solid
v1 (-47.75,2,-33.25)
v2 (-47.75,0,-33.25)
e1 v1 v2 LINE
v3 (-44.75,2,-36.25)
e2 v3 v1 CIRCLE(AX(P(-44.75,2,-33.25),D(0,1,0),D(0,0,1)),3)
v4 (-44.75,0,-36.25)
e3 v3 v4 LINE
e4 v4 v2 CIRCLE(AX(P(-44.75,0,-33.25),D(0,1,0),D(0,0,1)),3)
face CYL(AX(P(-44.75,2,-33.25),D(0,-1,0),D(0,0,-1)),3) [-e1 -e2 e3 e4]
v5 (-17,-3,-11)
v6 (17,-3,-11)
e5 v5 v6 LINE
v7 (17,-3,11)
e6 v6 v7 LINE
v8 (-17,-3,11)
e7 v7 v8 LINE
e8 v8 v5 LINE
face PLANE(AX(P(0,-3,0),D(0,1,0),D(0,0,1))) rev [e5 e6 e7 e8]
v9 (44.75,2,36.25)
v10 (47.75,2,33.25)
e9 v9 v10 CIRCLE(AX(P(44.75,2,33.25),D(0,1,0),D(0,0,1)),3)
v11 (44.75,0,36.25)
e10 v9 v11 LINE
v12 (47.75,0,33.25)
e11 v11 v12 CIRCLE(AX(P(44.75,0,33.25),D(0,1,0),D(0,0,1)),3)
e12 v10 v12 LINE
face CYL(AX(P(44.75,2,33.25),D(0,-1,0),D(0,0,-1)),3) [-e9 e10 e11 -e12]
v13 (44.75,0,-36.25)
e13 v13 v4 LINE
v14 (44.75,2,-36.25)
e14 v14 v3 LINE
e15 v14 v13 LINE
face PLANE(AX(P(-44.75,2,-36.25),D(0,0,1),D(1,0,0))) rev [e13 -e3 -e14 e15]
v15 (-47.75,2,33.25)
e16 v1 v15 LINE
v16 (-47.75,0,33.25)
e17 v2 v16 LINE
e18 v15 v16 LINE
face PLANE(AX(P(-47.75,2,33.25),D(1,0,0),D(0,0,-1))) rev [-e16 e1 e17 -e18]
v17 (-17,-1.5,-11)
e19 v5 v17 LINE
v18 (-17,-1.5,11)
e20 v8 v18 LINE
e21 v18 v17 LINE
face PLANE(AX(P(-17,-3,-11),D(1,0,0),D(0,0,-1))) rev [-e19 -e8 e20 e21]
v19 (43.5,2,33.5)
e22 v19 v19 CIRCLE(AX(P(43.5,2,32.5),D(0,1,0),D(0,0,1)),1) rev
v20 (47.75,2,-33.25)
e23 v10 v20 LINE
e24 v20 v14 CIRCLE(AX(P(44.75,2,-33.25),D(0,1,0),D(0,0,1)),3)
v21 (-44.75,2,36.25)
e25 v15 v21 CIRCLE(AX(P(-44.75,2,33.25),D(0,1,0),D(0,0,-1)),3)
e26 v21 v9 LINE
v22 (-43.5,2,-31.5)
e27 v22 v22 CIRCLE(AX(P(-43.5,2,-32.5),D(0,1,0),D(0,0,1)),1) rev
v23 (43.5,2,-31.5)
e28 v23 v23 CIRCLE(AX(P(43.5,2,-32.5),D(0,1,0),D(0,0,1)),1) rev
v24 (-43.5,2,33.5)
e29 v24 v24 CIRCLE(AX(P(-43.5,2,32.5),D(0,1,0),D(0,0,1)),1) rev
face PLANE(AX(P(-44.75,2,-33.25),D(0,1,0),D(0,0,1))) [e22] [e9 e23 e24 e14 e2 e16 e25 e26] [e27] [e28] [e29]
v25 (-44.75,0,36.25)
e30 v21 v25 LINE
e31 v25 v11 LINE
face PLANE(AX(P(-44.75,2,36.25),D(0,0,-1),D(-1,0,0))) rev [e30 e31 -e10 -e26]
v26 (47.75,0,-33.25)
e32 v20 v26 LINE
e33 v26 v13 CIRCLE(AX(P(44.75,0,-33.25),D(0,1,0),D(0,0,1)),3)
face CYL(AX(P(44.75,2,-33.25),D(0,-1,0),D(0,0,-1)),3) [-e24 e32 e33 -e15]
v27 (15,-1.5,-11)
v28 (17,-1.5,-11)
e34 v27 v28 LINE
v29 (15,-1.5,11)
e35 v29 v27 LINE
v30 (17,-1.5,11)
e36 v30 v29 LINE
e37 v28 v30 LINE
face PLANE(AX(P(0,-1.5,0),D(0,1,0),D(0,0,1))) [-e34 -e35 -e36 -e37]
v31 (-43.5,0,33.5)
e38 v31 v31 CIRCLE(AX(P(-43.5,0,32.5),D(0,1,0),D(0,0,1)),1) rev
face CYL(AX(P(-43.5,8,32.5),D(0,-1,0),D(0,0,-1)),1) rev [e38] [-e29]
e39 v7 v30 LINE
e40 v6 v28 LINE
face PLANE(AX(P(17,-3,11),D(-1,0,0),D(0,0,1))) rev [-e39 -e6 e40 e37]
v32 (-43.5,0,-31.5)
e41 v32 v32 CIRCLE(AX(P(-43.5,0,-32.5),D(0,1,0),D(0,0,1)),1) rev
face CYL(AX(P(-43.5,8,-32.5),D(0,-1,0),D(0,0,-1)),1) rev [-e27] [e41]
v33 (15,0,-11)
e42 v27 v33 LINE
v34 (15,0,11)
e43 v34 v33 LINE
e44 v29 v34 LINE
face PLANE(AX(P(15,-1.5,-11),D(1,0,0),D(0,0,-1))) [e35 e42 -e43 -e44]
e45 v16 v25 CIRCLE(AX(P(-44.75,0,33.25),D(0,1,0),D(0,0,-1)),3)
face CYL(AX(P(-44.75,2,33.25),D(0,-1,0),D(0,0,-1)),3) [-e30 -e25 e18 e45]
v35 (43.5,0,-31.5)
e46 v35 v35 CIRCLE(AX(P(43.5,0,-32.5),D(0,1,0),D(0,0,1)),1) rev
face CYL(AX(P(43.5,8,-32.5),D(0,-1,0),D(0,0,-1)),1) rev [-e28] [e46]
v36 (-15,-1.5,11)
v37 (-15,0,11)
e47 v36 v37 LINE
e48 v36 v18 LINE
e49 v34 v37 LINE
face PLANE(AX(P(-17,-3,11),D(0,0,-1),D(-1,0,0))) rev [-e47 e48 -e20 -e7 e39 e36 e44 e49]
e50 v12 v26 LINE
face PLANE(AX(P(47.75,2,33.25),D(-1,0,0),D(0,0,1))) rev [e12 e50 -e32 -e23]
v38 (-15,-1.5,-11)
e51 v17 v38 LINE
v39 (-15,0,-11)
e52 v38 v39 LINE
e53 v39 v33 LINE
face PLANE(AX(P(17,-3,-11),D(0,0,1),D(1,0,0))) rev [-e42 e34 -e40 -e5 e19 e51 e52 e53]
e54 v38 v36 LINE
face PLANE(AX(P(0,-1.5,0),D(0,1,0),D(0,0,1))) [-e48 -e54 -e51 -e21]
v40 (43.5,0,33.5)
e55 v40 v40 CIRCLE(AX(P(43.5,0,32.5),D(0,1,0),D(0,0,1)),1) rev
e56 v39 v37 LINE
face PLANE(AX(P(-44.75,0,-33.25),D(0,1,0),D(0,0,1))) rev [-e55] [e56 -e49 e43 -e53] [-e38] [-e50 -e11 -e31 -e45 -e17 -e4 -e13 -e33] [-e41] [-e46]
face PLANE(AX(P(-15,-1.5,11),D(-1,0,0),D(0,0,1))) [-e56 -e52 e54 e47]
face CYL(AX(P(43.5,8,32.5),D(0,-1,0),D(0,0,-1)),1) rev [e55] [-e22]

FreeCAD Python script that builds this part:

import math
import FreeCAD as App
import Part
import Sketcher
from FreeCAD import Vector
Q = App.Units.Quantity

doc = App.newDocument("Part")
params = doc.addObject("Spreadsheet::Sheet", "Params")
for row, (alias, value) in enumerate([
    ("sketch1_radius", "3 mm"),
    ("sketch1_width", "89.5 mm"),
    ("sketch1_height", "66.5 mm"),
    ("pad1_length", "2 mm"),
    ("sketch2_diameter", "2 mm"),
    ("sketch3_width", "34 mm"),
    ("sketch3_height", "22 mm"),
    ("pad2_length", "3 mm"),
    ("sketch4_width", "2 mm"),
    ("sketch4_height", "22 mm"),
    ("pocket2_length", "1.5 mm"),
], start=1):
    params.set(f"A{row}", alias)
    params.set(f"B{row}", "=" + value)
    params.setAlias(f"B{row}", alias)

body = doc.addObject("PartDesign::Body", "Body")

# Sketch on XZ plane
sketch1 = doc.addObject("Sketcher::SketchObject", "Sketch")
body.addObject(sketch1)
sketch1.AttachmentSupport = (doc.XZ_Plane, [""])
sketch1.MapMode = "FlatFace"
sketch1.addGeometry([
    Part.LineSegment(Vector(-47.75, -33.25, 0), Vector(-47.75, 33.25, 0)),  # 0
    Part.ArcOfCircle(Part.Circle(Vector(-44.75, 33.25, 0), Vector(0, 0, 1), 3), math.radians(90), math.radians(180)),  # 1
    Part.LineSegment(Vector(-44.75, 36.25, 0), Vector(44.75, 36.25, 0)),  # 2
    Part.ArcOfCircle(Part.Circle(Vector(44.75, 33.25, 0), Vector(0, 0, 1), 3), math.radians(0), math.radians(90)),  # 3
    Part.LineSegment(Vector(47.75, 33.25, 0), Vector(47.75, -33.25, 0)),  # 4
    Part.ArcOfCircle(Part.Circle(Vector(44.75, -33.25, 0), Vector(0, 0, 1), 3), math.radians(-90), math.radians(0)),  # 5
    Part.LineSegment(Vector(44.75, -36.25, 0), Vector(-44.75, -36.25, 0)),  # 6
    Part.ArcOfCircle(Part.Circle(Vector(-44.75, -33.25, 0), Vector(0, 0, 1), 3), math.radians(180), math.radians(270)),  # 7
], False)
sketch1.addConstraint([
    Sketcher.Constraint("Tangent", 0, 2, 1, 2),
    Sketcher.Constraint("Tangent", 1, 1, 2, 1),
    Sketcher.Constraint("Tangent", 2, 2, 3, 2),
    Sketcher.Constraint("Tangent", 3, 1, 4, 1),
    Sketcher.Constraint("Tangent", 4, 2, 5, 2),
    Sketcher.Constraint("Tangent", 5, 1, 6, 1),
    Sketcher.Constraint("Tangent", 6, 2, 7, 2),
    Sketcher.Constraint("Tangent", 7, 1, 0, 1),
    Sketcher.Constraint("Vertical", 0),
    Sketcher.Constraint("Horizontal", 2),
    Sketcher.Constraint("Vertical", 4),
    Sketcher.Constraint("Horizontal", 6),
    Sketcher.Constraint("Equal", 1, 3),
    Sketcher.Constraint("Equal", 3, 5),
    Sketcher.Constraint("Equal", 5, 7),
    Sketcher.Constraint("Symmetric", 1, 3, 5, 3, -1, 1),
    Sketcher.Constraint("Radius", 1, Q("3 mm")),
    Sketcher.Constraint("DistanceX", 2, 1, 2, 2, Q("89.5 mm")),
    Sketcher.Constraint("DistanceY", 0, 1, 0, 2, Q("66.5 mm")),
])
sketch1.setExpression("Constraints[16]", "Params.sketch1_radius")
sketch1.setExpression("Constraints[17]", "Params.sketch1_width")
sketch1.setExpression("Constraints[18]", "Params.sketch1_height")
pad1 = doc.addObject("PartDesign::Pad", "Pad")
body.addObject(pad1)
pad1.Profile = sketch1
pad1.setExpression("Length", "Params.pad1_length")
pad1.Reversed = True

# Sketch on XZ plane
sketch2 = doc.addObject("Sketcher::SketchObject", "Sketch001")
body.addObject(sketch2)
sketch2.AttachmentSupport = (doc.XZ_Plane, [""])
sketch2.MapMode = "FlatFace"
sketch2.AttachmentOffset = App.Placement(Vector(0, 0, -5), App.Rotation())
sketch2.addGeometry([
    Part.Circle(Vector(-43.5, -32.5, 0), Vector(0, 0, 1), 1),
    Part.Circle(Vector(-43.5, 32.5, 0), Vector(0, 0, 1), 1),
    Part.Circle(Vector(43.5, 32.5, 0), Vector(0, 0, 1), 1),
    Part.Circle(Vector(43.5, -32.5, 0), Vector(0, 0, 1), 1),
], False)
sketch2.addConstraint([
    Sketcher.Constraint("Equal", 0, 1),
    Sketcher.Constraint("Equal", 1, 2),
    Sketcher.Constraint("Equal", 2, 3),
    Sketcher.Constraint("Symmetric", 0, 3, 2, 3, -1, 1),
    Sketcher.Constraint("Symmetric", 1, 3, 3, 3, -1, 1),
    Sketcher.Constraint("Symmetric", 1, 3, 2, 3, -2),
    Sketcher.Constraint("Diameter", 0, Q("2 mm")),
    Sketcher.Constraint("DistanceY", 0, 3, 1, 3, Q("65 mm")),
    Sketcher.Constraint("DistanceX", 1, 3, 2, 3, Q("87 mm")),
])
sketch2.setExpression("Constraints[6]", "Params.sketch2_diameter")
pocket1 = doc.addObject("PartDesign::Pocket", "Pocket")
body.addObject(pocket1)
pocket1.Profile = sketch2
pocket1.Type = "ThroughAll"
pocket1.Midplane = True

# Sketch on XZ plane
sketch3 = doc.addObject("Sketcher::SketchObject", "Sketch002")
body.addObject(sketch3)
sketch3.AttachmentSupport = (doc.XZ_Plane, [""])
sketch3.MapMode = "FlatFace"
sketch3.addGeometry([
    Part.LineSegment(Vector(-17, 11, 0), Vector(-17, -11, 0)),
    Part.LineSegment(Vector(-17, -11, 0), Vector(17, -11, 0)),
    Part.LineSegment(Vector(17, -11, 0), Vector(17, 11, 0)),
    Part.LineSegment(Vector(17, 11, 0), Vector(-17, 11, 0)),
], False)
sketch3.addConstraint([
    Sketcher.Constraint("Coincident", 0, 2, 1, 1),
    Sketcher.Constraint("Coincident", 1, 2, 2, 1),
    Sketcher.Constraint("Coincident", 2, 2, 3, 1),
    Sketcher.Constraint("Coincident", 3, 2, 0, 1),
    Sketcher.Constraint("Vertical", 0),
    Sketcher.Constraint("Horizontal", 1),
    Sketcher.Constraint("Vertical", 2),
    Sketcher.Constraint("Horizontal", 3),
    Sketcher.Constraint("Symmetric", 0, 2, 2, 2, -1, 1),
    Sketcher.Constraint("DistanceX", 1, 1, 1, 2, Q("34 mm")),
    Sketcher.Constraint("DistanceY", 0, 2, 0, 1, Q("22 mm")),
])
sketch3.setExpression("Constraints[9]", "Params.sketch3_width")
sketch3.setExpression("Constraints[10]", "Params.sketch3_height")
pad2 = doc.addObject("PartDesign::Pad", "Pad001")
body.addObject(pad2)
pad2.Profile = sketch3
pad2.setExpression("Length", "Params.pad2_length")

# Sketch on XZ plane
sketch4 = doc.addObject("Sketcher::SketchObject", "Sketch003")
body.addObject(sketch4)
sketch4.AttachmentSupport = (doc.XZ_Plane, [""])
sketch4.MapMode = "FlatFace"
sketch4.addGeometry([
    Part.LineSegment(Vector(-17, 11, 0), Vector(-17, -11, 0)),  # 0
    Part.LineSegment(Vector(-17, -11, 0), Vector(-15, -11, 0)),  # 1
    Part.LineSegment(Vector(-15, -11, 0), Vector(-15, 11, 0)),  # 2
    Part.LineSegment(Vector(-15, 11, 0), Vector(-17, 11, 0)),  # 3
    Part.LineSegment(Vector(15, 11, 0), Vector(15, -11, 0)),  # 4
    Part.LineSegment(Vector(15, -11, 0), Vector(17, -11, 0)),  # 5
    Part.LineSegment(Vector(17, -11, 0), Vector(17, 11, 0)),  # 6
    Part.LineSegment(Vector(17, 11, 0), Vector(15, 11, 0)),  # 7
], False)
sketch4.addConstraint([
    Sketcher.Constraint("Coincident", 0, 2, 1, 1),
    Sketcher.Constraint("Coincident", 1, 2, 2, 1),
    Sketcher.Constraint("Coincident", 2, 2, 3, 1),
    Sketcher.Constraint("Coincident", 3, 2, 0, 1),
    Sketcher.Constraint("Coincident", 4, 2, 5, 1),
    Sketcher.Constraint("Coincident", 5, 2, 6, 1),
    Sketcher.Constraint("Coincident", 6, 2, 7, 1),
    Sketcher.Constraint("Coincident", 7, 2, 4, 1),
    Sketcher.Constraint("Vertical", 0),
    Sketcher.Constraint("Horizontal", 1),
    Sketcher.Constraint("Vertical", 2),
    Sketcher.Constraint("Horizontal", 3),
    Sketcher.Constraint("Vertical", 4),
    Sketcher.Constraint("Horizontal", 5),
    Sketcher.Constraint("Vertical", 6),
    Sketcher.Constraint("Horizontal", 7),
    Sketcher.Constraint("Symmetric", 2, 2, 4, 2, -1, 1),
    Sketcher.Constraint("Symmetric", 0, 2, 6, 2, -1, 1),
    Sketcher.Constraint("Horizontal", 1, 2, 4, 2),
    Sketcher.Constraint("DistanceX", 1, 1, 1, 2, Q("2 mm")),
    Sketcher.Constraint("DistanceY", 0, 2, 0, 1, Q("22 mm")),
    Sketcher.Constraint("DistanceX", 0, 2, -1, 1, Q("17 mm")),
])
sketch4.setExpression("Constraints[19]", "Params.sketch4_width")
sketch4.setExpression("Constraints[20]", "Params.sketch4_height")
pocket2 = doc.addObject("PartDesign::Pocket", "Pocket001")
body.addObject(pocket2)
pocket2.Profile = sketch4
pocket2.setExpression("Length", "Params.pocket2_length")
pocket2.Reversed = True

doc.recompute()
